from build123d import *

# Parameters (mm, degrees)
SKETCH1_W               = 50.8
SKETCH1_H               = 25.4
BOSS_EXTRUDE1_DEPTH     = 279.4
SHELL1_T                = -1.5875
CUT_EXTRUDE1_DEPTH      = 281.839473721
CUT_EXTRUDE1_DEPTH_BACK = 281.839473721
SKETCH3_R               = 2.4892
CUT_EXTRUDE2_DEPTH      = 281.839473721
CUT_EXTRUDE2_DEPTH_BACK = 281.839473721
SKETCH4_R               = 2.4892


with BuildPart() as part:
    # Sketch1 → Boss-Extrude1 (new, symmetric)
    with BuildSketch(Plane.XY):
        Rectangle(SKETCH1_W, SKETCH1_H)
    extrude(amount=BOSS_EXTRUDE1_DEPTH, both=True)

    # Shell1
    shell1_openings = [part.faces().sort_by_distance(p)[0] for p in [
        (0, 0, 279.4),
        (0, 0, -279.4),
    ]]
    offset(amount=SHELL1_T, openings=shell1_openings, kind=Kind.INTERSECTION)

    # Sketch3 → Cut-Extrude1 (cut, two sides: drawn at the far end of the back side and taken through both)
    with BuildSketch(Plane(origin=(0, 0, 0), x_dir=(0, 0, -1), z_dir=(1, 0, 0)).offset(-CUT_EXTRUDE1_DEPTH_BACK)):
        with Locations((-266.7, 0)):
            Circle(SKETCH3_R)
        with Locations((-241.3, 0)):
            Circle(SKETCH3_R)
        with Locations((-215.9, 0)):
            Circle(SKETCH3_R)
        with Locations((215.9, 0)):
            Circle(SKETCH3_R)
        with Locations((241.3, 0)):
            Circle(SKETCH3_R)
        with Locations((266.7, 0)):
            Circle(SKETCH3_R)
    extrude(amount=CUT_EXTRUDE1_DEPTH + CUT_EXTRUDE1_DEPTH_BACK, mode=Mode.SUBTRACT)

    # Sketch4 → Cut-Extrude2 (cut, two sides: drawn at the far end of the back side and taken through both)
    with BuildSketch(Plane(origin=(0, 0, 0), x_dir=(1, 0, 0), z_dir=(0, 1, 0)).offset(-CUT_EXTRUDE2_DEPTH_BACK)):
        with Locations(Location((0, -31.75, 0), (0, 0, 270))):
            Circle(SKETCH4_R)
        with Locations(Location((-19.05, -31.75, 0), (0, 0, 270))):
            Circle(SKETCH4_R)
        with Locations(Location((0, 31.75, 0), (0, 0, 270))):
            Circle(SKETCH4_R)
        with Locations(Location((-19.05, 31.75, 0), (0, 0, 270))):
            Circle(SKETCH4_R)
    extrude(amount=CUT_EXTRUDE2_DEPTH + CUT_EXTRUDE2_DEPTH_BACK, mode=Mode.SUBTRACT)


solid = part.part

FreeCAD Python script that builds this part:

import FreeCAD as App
import Part
import Sketcher

V = App.Vector
Q = App.Units.Quantity


def faces_at(feature, points):
    """Names of the faces that lie closest to the given points."""
    faces = feature.Shape.Faces
    near = lambda p: min(range(len(faces)), key=lambda i: faces[i].distToShape(Part.Vertex(*p))[0])
    return sorted({f"Face{near(p) + 1}" for p in points})


def add_polygon(sketch, points):
    """Adds a closed chain of lines whose ends are joined by coincident constraints."""
    first, n = sketch.GeometryCount, len(points)
    for a, b in zip(points, points[1:] + points[:1]):
        sketch.addGeometry(Part.LineSegment(App.Vector(*a, 0), App.Vector(*b, 0)), False)
    for i in range(n):
        sketch.addConstraint(Sketcher.Constraint("Coincident", first + i, 2, first + (i + 1) % n, 1))

doc = App.newDocument("Part")
body = doc.addObject("PartDesign::Body", "Body")

# Sketch on XY plane
sketch1 = doc.addObject("Sketcher::SketchObject", "Sketch")
body.addObject(sketch1)
sketch1.AttachmentSupport = (doc.XY_Plane, [""])
sketch1.MapMode = "FlatFace"
add_polygon(sketch1, [(-25, 13), (-25, -13), (25, -13), (25, 13)])  # lines 0-3
sketch1.addConstraint([
    Sketcher.Constraint("Vertical", 0),
    Sketcher.Constraint("Horizontal", 1),
    Sketcher.Constraint("Vertical", 2),
    Sketcher.Constraint("Horizontal", 3),
    Sketcher.Constraint("Symmetric", 0, 2, 2, 2, -1, 1),
    Sketcher.Constraint("DistanceX", 1, 1, 1, 2, Q("2 in")),
    Sketcher.Constraint("DistanceY", 0, 2, 0, 1, Q("1 in")),
])
pad1 = doc.addObject("PartDesign::Pad", "Pad")
body.addObject(pad1)
pad1.Profile = sketch1
pad1.Length = Q("22 in")
pad1.Midplane = True
doc.recompute()

thickness = doc.addObject("PartDesign::Thickness", "Thickness")
body.addObject(thickness)
thickness.Base = (pad1, faces_at(pad1, [(0, 0, 279.4), (0, 0, -279.4)]))
thickness.Value = Q("0.0625 in")
thickness.Reversed = True
thickness.Join = "Intersection"

# Sketch on YZ plane
sketch2 = doc.addObject("Sketcher::SketchObject", "Sketch001")
body.addObject(sketch2)
sketch2.AttachmentSupport = (doc.YZ_Plane, [""])
sketch2.MapMode = "FlatFace"
sketch2.addGeometry([
    Part.Circle(V(0, 266.7, 0), V(0, 0, 1), 2.5),  # 0
    Part.Circle(V(0, 241.3, 0), V(0, 0, 1), 2.5),  # 1
    Part.Circle(V(0, 215.9, 0), V(0, 0, 1), 2.5),  # 2
    Part.Circle(V(0, -215.9, 0), V(0, 0, 1), 2.5),  # 3
    Part.Circle(V(0, -241.3, 0), V(0, 0, 1), 2.5),  # 4
    Part.Circle(V(0, -266.7, 0), V(0, 0, 1), 2.5),  # 5
], False)
sketch2.addConstraint([
    Sketcher.Constraint("Equal", 0, 1),
    Sketcher.Constraint("Equal", 1, 2),
    Sketcher.Constraint("Equal", 2, 3),
    Sketcher.Constraint("Equal", 3, 4),
    Sketcher.Constraint("Equal", 4, 5),
    Sketcher.Constraint("Symmetric", 2, 3, 3, 3, -1, 1),
    Sketcher.Constraint("Symmetric", 1, 3, 4, 3, -1, 1),
    Sketcher.Constraint("Symmetric", 0, 3, 5, 3, -1, 1),
    Sketcher.Constraint("PointOnObject", 0, 3, -2),
    Sketcher.Constraint("PointOnObject", 1, 3, -2),
    Sketcher.Constraint("PointOnObject", 2, 3, -2),
    Sketcher.Constraint("Diameter", 0, Q("0.196 in")),
    Sketcher.Constraint("DistanceY", 1, 3, 0, 3, Q("1 in")),
    Sketcher.Constraint("DistanceY", 2, 3, 1, 3, Q("1 in")),
    Sketcher.Constraint("DistanceY", 3, 3, 2, 3, Q("17 in")),
])
pocket1 = doc.addObject("PartDesign::Pocket", "Pocket")
body.addObject(pocket1)
pocket1.Profile = sketch2
pocket1.Type = "ThroughAll"
pocket1.Midplane = True

# Sketch on XZ plane
sketch3 = doc.addObject("Sketcher::SketchObject", "Sketch002")
body.addObject(sketch3)
sketch3.AttachmentSupport = (doc.XZ_Plane, [""])
sketch3.MapMode = "FlatFace"
sketch3.addGeometry([
    Part.Circle(V(0, 31.8, 0), V(0, 0, 1), 2.5),
    Part.Circle(V(-19.1, 31.8, 0), V(0, 0, 1), 2.5),
    Part.Circle(V(0, -31.8, 0), V(0, 0, 1), 2.5),
    Part.Circle(V(-19.1, -31.8, 0), V(0, 0, 1), 2.5),
], False)
sketch3.addConstraint([
    Sketcher.Constraint("Equal", 0, 1),
    Sketcher.Constraint("Equal", 1, 2),
    Sketcher.Constraint("Equal", 2, 3),
    Sketcher.Constraint("Symmetric", 0, 3, 2, 3, -1, 1),
    Sketcher.Constraint("Symmetric", 1, 3, 3, 3, -1),
    Sketcher.Constraint("PointOnObject", 0, 3, -2),
    Sketcher.Constraint("Horizontal", 0, 3, 1, 3),
    Sketcher.Constraint("Diameter", 0, Q("0.196 in")),
    Sketcher.Constraint("DistanceY", 2, 3, 0, 3, Q("2.5 in")),
    Sketcher.Constraint("DistanceX", 1, 3, -1, 1, Q("0.75 in")),
])
pocket2 = doc.addObject("PartDesign::Pocket", "Pocket001")
body.addObject(pocket2)
pocket2.Profile = sketch3
pocket2.Type = "ThroughAll"
pocket2.Midplane = True

doc.recompute()
